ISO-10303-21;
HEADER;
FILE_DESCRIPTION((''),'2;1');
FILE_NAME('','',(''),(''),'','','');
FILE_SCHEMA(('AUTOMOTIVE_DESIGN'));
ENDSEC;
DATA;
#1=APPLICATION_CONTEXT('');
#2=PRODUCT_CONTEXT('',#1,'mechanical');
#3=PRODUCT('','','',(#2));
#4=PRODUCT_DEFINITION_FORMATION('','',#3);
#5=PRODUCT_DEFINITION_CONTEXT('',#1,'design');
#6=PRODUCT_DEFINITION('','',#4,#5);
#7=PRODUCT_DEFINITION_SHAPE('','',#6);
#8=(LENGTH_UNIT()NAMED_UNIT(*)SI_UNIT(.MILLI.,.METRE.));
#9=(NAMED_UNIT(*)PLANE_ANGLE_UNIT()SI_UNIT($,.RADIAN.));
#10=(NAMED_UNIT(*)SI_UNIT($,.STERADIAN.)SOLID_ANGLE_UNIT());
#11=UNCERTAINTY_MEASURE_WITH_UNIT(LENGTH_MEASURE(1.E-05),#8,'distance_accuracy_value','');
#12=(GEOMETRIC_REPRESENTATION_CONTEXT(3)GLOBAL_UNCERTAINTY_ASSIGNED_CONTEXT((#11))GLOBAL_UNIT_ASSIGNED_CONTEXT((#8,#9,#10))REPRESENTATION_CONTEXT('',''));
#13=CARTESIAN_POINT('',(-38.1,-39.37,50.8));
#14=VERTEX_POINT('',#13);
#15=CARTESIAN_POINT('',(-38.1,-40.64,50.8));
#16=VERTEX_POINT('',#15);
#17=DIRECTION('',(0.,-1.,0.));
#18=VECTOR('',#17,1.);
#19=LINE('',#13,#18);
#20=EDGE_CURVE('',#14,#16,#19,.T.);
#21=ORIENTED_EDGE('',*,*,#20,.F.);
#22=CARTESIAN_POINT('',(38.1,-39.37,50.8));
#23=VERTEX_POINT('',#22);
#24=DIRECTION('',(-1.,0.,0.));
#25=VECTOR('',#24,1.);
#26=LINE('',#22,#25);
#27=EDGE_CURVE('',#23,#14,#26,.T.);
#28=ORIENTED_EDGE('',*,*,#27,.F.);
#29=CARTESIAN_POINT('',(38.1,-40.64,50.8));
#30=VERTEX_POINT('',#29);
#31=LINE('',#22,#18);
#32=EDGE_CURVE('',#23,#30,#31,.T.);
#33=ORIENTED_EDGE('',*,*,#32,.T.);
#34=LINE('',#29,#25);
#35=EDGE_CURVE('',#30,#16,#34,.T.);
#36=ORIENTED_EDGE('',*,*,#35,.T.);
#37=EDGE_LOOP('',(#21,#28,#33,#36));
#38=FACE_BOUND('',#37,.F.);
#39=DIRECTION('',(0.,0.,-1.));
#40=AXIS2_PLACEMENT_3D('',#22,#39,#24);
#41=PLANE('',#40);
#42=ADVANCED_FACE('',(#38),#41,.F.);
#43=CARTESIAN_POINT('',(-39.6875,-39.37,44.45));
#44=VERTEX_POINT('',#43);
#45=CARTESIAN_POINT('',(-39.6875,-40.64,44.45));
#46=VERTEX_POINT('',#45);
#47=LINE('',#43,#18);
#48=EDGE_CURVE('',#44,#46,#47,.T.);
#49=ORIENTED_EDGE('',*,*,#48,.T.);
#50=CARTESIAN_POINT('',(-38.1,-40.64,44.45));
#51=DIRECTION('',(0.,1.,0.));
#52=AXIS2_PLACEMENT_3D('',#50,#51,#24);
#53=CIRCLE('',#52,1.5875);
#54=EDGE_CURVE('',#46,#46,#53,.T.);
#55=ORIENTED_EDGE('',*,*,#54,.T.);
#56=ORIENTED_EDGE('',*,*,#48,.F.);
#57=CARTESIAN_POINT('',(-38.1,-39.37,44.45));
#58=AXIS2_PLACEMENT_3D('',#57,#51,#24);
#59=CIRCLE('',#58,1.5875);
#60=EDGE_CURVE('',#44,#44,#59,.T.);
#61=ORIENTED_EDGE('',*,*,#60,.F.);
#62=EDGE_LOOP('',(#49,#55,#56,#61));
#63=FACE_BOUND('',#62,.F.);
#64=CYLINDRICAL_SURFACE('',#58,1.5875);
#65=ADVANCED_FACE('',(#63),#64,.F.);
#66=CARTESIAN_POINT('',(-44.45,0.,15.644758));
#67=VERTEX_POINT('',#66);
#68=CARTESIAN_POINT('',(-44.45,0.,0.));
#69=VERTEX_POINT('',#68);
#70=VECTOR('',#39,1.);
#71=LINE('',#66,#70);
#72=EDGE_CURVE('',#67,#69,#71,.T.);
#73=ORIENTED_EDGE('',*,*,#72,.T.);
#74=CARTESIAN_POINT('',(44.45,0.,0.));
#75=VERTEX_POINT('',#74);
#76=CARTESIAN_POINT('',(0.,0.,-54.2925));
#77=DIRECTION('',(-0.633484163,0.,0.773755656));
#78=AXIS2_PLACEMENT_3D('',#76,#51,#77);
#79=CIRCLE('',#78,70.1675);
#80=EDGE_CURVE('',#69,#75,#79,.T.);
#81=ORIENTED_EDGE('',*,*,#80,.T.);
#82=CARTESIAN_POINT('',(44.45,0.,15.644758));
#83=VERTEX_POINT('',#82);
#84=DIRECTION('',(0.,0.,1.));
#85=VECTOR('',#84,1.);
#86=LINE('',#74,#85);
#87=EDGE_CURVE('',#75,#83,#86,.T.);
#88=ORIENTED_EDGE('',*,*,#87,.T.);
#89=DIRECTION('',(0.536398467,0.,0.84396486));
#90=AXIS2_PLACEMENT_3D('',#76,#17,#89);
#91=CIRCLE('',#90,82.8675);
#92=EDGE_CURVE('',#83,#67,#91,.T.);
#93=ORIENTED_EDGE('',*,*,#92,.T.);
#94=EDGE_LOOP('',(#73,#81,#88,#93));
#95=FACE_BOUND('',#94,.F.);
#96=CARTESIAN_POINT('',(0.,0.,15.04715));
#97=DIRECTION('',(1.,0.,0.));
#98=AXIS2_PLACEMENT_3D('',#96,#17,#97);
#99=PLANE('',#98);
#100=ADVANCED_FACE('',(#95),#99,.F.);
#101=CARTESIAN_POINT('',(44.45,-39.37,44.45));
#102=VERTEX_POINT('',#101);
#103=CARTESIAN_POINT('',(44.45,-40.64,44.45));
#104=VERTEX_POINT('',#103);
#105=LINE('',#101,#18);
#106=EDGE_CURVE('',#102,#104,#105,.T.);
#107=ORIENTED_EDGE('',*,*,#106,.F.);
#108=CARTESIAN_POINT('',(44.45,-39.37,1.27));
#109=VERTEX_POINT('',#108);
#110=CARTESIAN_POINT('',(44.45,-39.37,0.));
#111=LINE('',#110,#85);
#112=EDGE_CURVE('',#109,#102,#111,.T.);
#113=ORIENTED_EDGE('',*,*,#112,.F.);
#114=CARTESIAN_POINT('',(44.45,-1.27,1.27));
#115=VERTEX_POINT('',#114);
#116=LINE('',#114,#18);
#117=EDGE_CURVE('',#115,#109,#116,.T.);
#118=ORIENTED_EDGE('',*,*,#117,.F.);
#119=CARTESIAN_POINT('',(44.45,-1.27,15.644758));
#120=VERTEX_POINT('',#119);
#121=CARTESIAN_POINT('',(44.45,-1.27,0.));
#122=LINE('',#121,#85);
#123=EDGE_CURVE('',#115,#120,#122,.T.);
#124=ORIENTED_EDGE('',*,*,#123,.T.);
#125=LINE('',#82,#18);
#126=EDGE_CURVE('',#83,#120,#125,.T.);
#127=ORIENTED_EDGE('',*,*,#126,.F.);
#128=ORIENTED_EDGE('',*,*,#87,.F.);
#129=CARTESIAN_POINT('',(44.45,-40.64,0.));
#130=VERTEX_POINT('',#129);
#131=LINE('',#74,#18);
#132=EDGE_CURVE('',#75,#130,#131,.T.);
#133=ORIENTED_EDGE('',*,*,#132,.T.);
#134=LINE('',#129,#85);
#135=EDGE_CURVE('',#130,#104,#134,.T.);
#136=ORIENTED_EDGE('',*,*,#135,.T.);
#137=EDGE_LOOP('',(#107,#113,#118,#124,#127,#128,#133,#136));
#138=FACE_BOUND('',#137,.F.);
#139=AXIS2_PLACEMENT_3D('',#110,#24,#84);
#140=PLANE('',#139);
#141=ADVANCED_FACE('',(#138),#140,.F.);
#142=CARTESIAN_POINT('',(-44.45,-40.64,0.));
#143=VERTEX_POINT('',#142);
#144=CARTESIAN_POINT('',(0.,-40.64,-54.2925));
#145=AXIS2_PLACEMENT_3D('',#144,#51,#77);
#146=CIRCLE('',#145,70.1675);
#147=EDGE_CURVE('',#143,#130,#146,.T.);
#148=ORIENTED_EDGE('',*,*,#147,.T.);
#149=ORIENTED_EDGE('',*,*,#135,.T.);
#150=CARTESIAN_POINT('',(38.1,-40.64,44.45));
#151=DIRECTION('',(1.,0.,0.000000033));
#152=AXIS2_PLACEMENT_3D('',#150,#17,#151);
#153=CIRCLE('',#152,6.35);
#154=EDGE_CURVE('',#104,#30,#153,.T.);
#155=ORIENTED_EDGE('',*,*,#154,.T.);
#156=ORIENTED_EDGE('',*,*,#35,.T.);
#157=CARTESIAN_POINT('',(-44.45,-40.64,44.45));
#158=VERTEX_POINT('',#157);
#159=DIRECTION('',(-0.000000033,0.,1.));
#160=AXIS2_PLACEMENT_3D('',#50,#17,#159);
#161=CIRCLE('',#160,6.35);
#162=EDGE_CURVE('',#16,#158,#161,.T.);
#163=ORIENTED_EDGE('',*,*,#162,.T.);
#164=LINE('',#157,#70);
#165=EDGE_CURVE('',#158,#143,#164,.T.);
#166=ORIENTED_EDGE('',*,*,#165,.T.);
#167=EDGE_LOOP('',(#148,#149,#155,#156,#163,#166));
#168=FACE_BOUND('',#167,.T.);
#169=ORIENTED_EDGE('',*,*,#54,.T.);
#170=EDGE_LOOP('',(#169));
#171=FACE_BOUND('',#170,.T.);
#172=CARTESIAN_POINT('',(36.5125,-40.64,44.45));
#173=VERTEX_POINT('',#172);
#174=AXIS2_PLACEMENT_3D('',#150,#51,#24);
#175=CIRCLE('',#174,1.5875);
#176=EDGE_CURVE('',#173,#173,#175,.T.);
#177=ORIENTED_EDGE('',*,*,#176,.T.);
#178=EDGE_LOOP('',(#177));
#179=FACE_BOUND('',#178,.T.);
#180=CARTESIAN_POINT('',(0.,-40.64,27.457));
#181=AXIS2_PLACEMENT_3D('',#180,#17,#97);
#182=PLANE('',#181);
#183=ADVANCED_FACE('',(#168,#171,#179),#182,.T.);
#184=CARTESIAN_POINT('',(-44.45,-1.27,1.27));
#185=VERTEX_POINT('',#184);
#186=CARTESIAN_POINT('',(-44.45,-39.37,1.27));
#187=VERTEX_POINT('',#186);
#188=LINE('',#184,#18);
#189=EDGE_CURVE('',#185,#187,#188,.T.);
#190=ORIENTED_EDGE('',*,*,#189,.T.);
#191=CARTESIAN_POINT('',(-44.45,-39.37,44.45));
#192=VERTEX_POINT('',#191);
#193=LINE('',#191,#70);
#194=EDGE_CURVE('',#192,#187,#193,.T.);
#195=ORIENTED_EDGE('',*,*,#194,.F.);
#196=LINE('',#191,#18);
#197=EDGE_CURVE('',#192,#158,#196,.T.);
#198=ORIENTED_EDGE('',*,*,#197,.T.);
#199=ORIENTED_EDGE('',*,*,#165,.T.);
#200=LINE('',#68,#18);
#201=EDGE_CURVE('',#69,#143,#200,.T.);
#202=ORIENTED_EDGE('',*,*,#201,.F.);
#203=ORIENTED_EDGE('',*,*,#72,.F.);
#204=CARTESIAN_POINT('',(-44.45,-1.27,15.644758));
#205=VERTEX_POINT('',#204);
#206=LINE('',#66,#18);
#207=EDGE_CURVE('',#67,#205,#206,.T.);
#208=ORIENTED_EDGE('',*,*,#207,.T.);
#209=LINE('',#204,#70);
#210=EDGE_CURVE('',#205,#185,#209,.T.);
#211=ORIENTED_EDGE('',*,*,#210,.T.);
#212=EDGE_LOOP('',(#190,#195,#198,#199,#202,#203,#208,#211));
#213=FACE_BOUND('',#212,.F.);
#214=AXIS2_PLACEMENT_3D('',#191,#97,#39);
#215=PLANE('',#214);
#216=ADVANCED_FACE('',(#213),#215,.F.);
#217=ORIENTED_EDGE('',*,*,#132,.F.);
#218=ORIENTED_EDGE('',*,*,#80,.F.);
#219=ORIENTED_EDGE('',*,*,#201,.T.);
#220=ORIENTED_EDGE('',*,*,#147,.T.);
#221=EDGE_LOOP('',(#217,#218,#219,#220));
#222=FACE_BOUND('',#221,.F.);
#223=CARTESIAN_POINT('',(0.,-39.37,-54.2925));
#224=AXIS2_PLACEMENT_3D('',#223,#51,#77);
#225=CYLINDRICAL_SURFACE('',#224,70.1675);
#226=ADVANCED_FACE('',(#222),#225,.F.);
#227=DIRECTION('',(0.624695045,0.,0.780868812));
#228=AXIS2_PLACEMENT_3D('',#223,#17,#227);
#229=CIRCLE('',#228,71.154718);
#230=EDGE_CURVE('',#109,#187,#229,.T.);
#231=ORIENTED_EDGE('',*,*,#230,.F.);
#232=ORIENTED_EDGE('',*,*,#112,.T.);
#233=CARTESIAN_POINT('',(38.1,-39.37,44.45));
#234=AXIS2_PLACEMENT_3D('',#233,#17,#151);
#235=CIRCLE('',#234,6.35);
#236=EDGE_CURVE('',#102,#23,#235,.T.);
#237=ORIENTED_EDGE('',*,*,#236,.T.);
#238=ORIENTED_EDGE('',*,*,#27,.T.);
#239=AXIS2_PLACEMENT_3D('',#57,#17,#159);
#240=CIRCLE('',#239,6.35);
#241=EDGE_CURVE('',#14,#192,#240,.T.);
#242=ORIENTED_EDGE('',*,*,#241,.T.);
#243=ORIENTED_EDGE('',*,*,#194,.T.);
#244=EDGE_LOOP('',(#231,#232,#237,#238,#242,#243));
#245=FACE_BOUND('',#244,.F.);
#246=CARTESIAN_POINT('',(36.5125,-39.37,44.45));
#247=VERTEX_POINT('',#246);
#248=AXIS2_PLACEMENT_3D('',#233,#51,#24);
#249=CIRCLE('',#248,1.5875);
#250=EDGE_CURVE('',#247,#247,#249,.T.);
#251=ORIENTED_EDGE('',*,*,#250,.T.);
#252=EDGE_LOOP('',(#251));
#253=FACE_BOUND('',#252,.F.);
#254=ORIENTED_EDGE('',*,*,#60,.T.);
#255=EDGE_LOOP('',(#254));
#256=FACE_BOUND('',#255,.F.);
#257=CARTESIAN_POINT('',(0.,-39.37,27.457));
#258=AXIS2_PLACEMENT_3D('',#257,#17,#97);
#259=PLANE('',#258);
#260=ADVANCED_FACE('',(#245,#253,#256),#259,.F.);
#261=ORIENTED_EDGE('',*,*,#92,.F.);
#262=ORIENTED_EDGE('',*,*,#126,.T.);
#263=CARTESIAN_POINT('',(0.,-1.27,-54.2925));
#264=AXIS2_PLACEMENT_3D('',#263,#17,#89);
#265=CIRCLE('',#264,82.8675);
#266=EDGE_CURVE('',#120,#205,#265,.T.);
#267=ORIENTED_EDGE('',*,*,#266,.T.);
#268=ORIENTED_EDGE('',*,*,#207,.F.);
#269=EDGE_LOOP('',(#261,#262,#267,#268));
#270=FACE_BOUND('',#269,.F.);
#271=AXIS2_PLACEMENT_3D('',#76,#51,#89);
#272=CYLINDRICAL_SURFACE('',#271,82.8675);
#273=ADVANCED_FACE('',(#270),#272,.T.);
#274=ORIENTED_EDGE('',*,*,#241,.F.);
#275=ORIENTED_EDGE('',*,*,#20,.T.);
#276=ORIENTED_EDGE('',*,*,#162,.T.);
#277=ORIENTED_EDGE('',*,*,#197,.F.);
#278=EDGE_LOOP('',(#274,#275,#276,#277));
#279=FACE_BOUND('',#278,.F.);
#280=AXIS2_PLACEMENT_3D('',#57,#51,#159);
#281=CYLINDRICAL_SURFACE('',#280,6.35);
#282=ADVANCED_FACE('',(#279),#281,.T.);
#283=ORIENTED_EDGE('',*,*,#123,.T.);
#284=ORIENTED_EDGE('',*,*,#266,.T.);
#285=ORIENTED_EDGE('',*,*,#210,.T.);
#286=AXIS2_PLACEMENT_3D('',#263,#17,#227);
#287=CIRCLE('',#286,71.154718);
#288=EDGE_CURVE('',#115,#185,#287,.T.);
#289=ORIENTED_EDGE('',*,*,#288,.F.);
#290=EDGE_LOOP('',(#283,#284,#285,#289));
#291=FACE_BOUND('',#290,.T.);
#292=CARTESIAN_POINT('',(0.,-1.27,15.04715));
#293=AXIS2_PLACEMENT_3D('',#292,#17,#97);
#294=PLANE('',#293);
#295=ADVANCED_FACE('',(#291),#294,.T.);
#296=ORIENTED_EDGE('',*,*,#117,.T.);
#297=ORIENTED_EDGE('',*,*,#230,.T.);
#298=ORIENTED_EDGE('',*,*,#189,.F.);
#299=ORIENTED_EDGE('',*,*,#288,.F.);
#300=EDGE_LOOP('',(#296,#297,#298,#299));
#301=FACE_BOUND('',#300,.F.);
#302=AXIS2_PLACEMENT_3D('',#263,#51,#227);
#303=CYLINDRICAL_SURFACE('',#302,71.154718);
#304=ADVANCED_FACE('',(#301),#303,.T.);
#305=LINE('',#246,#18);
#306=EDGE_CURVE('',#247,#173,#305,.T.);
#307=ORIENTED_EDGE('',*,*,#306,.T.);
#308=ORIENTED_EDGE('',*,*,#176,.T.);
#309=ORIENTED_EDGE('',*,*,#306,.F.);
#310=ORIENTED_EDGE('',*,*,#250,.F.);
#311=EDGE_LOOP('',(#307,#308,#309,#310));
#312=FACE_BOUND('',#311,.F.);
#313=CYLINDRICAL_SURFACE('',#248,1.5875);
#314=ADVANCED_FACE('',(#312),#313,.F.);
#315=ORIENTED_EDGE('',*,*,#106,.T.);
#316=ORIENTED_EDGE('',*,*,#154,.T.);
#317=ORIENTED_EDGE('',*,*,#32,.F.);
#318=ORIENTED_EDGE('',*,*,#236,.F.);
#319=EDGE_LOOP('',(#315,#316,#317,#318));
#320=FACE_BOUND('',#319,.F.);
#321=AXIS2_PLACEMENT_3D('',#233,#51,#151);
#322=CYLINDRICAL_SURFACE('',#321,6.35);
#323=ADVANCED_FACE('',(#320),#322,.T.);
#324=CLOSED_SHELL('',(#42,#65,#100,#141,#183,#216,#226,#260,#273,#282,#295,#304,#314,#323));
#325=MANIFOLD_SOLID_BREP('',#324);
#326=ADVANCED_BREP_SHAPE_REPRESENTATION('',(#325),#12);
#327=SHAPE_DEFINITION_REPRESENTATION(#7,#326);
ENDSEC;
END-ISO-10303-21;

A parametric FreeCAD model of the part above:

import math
import FreeCAD as App
import Part
import Sketcher

V = App.Vector
Q = App.Units.Quantity

doc = App.newDocument("Part")
body = doc.addObject("PartDesign::Body", "Body")

# Sketch on XZ plane
sketch1 = body.newObject("Sketcher::SketchObject", "Sketch")
sketch1.AttachmentSupport = (doc.getObject("XZ_Plane"), [""])
sketch1.MapMode = "FlatFace"
sketch1.addGeometry([
    Part.LineSegment(V(-44, 16, 0), V(-44, 0, 0)),
    Part.ArcOfCircle(Part.Circle(V(0, -54, 0), V(0, 0, 1), 70), math.radians(51), math.radians(129)),
    Part.LineSegment(V(44, 0, 0), V(44, 16, 0)),
    Part.ArcOfCircle(Part.Circle(V(0, -54, 0), V(0, 0, 1), 83), math.radians(58), math.radians(122)),
], False)
sketch1.addConstraint([
    Sketcher.Constraint("Coincident", 0, 2, 1, 2),
    Sketcher.Constraint("Coincident", 1, 1, 2, 1),
    Sketcher.Constraint("Coincident", 2, 2, 3, 1),
    Sketcher.Constraint("Coincident", 3, 2, 0, 1),
    Sketcher.Constraint("Vertical", 0),
    Sketcher.Constraint("Vertical", 2),
    Sketcher.Constraint("Coincident", 3, 3, 1, 3),
    Sketcher.Constraint("Symmetric", 0, 2, 1, 1, -1, 1),
    Sketcher.Constraint("PointOnObject", 1, 3, -2),
    Sketcher.Constraint("Radius", 1, Q("2.7625 in")),
    Sketcher.Constraint("Radius", 3, Q("3.2625 in")),
    Sketcher.Constraint("DistanceX", 0, 2, 1, 1, Q("3.5 in")),
])
pad1 = body.newObject("PartDesign::Pad", "Pad")
pad1.Profile = sketch1
pad1.Length = Q("0.05 in")

# Sketch on XZ plane
sketch2 = body.newObject("Sketcher::SketchObject", "Sketch001")
sketch2.AttachmentSupport = (doc.getObject("XZ_Plane"), [""])
sketch2.MapMode = "FlatFace"
sketch2.AttachmentOffset = App.Placement(V(0, 0, 0.05 * 25.4), App.Rotation())
sketch2.addGeometry([
    Part.ArcOfCircle(Part.Circle(V(0, -54.3, 0), V(0, 0, 1), 70.2), math.radians(51), math.radians(129)),
    Part.LineSegment(V(44.5, 0, 0), V(44.5, 1.3, 0)),
    Part.ArcOfCircle(Part.Circle(V(0, -54.3, 0), V(0, 0, 1), 71.2), math.radians(51), math.radians(129)),
    Part.LineSegment(V(-44.5, 1.3, 0), V(-44.5, 0, 0)),
], False)
sketch2.addConstraint([
    Sketcher.Constraint("Coincident", 0, 1, 1, 1),
    Sketcher.Constraint("Coincident", 1, 2, 2, 1),
    Sketcher.Constraint("Coincident", 2, 2, 3, 1),
    Sketcher.Constraint("Coincident", 3, 2, 0, 2),
    Sketcher.Constraint("Vertical", 1),
    Sketcher.Constraint("Vertical", 3),
    Sketcher.Constraint("Coincident", 2, 3, 0, 3),
    Sketcher.Constraint("Symmetric", 0, 1, 3, 2, -1, 1),
    Sketcher.Constraint("PointOnObject", 0, 3, -2),
    Sketcher.Constraint("DistanceY", 1, 1, 1, 2, Q("0.05 in")),
    Sketcher.Constraint("Radius", 0, Q("2.7625 in")),
    Sketcher.Constraint("DistanceX", 2, 2, 1, 2, Q("3.5 in")),
])
pad2 = body.newObject("PartDesign::Pad", "Pad001")
pad2.Profile = sketch2
pad2.Length = Q("1.5 in")

# Sketch on XZ plane
sketch3 = body.newObject("Sketcher::SketchObject", "Sketch002")
sketch3.AttachmentSupport = (doc.getObject("XZ_Plane"), [""])
sketch3.MapMode = "FlatFace"
sketch3.AttachmentOffset = App.Placement(V(0, 0, 1.55 * 25.4), App.Rotation())
sketch3.addGeometry([
    Part.LineSegment(V(-44, 44, 0), V(-44, 0, 0)),  # 0
    Part.ArcOfCircle(Part.Circle(V(0, -54, 0), V(0, 0, 1), 70), math.radians(51), math.radians(129)),  # 1
    Part.LineSegment(V(44, 0, 0), V(44, 44, 0)),  # 2
    Part.ArcOfCircle(Part.Circle(V(38, 44, 0), V(0, 0, 1), 6), math.radians(0), math.radians(90)),  # 3
    Part.LineSegment(V(38, 51, 0), V(-38, 51, 0)),  # 4
    Part.ArcOfCircle(Part.Circle(V(-38, 44, 0), V(0, 0, 1), 6), math.radians(90), math.radians(180)),  # 5
], False)
sketch3.addConstraint([
    Sketcher.Constraint("Coincident", 0, 2, 1, 2),
    Sketcher.Constraint("Coincident", 1, 1, 2, 1),
    Sketcher.Constraint("Tangent", 2, 2, 3, 1),
    Sketcher.Constraint("Tangent", 3, 2, 4, 1),
    Sketcher.Constraint("Tangent", 4, 2, 5, 1),
    Sketcher.Constraint("Tangent", 5, 2, 0, 1),
    Sketcher.Constraint("Vertical", 0),
    Sketcher.Constraint("Vertical", 2),
    Sketcher.Constraint("Horizontal", 4),
    Sketcher.Constraint("Equal", 3, 5),
    Sketcher.Constraint("Symmetric", 0, 2, 1, 1, -1, 1),
    Sketcher.Constraint("PointOnObject", 1, 3, -2),
    Sketcher.Constraint("DistanceX", 4, 2, 4, 1, Q("3 in")),
    Sketcher.Constraint("Radius", 3, Q("0.25 in")),
    Sketcher.Constraint("DistanceY", -1, 1, 3, 2, Q("2 in")),
    Sketcher.Constraint("Radius", 1, Q("2.7625 in")),
])
pad3 = body.newObject("PartDesign::Pad", "Pad002")
pad3.Profile = sketch3
pad3.Length = Q("0.05 in")

# Sketch on XZ plane
sketch4 = body.newObject("Sketcher::SketchObject", "Sketch003")
sketch4.AttachmentSupport = (doc.getObject("XZ_Plane"), [""])
sketch4.MapMode = "FlatFace"
sketch4.AttachmentOffset = App.Placement(V(0, 0, 1.55 * 25.4), App.Rotation())
sketch4.addGeometry([
    Part.Circle(V(38.1, 44.5, 0), V(0, 0, 1), 1.6),
    Part.Circle(V(-38.1, 44.5, 0), V(0, 0, 1), 1.6),
], False)
sketch4.addConstraint([
    Sketcher.Constraint("Equal", 0, 1),
    Sketcher.Constraint("Symmetric", 0, 3, 1, 3, -2),
    Sketcher.Constraint("Diameter", 0, Q("0.125 in")),
    Sketcher.Constraint("DistanceX", 1, 3, 0, 3, Q("3 in")),
    Sketcher.Constraint("DistanceY", -1, 1, 0, 3, Q("1.75 in")),
])
pocket1 = body.newObject("PartDesign::Pocket", "Pocket")
pocket1.Profile = sketch4
pocket1.Length = Q("1 in")
pocket1.Reversed = True

doc.recompute()
